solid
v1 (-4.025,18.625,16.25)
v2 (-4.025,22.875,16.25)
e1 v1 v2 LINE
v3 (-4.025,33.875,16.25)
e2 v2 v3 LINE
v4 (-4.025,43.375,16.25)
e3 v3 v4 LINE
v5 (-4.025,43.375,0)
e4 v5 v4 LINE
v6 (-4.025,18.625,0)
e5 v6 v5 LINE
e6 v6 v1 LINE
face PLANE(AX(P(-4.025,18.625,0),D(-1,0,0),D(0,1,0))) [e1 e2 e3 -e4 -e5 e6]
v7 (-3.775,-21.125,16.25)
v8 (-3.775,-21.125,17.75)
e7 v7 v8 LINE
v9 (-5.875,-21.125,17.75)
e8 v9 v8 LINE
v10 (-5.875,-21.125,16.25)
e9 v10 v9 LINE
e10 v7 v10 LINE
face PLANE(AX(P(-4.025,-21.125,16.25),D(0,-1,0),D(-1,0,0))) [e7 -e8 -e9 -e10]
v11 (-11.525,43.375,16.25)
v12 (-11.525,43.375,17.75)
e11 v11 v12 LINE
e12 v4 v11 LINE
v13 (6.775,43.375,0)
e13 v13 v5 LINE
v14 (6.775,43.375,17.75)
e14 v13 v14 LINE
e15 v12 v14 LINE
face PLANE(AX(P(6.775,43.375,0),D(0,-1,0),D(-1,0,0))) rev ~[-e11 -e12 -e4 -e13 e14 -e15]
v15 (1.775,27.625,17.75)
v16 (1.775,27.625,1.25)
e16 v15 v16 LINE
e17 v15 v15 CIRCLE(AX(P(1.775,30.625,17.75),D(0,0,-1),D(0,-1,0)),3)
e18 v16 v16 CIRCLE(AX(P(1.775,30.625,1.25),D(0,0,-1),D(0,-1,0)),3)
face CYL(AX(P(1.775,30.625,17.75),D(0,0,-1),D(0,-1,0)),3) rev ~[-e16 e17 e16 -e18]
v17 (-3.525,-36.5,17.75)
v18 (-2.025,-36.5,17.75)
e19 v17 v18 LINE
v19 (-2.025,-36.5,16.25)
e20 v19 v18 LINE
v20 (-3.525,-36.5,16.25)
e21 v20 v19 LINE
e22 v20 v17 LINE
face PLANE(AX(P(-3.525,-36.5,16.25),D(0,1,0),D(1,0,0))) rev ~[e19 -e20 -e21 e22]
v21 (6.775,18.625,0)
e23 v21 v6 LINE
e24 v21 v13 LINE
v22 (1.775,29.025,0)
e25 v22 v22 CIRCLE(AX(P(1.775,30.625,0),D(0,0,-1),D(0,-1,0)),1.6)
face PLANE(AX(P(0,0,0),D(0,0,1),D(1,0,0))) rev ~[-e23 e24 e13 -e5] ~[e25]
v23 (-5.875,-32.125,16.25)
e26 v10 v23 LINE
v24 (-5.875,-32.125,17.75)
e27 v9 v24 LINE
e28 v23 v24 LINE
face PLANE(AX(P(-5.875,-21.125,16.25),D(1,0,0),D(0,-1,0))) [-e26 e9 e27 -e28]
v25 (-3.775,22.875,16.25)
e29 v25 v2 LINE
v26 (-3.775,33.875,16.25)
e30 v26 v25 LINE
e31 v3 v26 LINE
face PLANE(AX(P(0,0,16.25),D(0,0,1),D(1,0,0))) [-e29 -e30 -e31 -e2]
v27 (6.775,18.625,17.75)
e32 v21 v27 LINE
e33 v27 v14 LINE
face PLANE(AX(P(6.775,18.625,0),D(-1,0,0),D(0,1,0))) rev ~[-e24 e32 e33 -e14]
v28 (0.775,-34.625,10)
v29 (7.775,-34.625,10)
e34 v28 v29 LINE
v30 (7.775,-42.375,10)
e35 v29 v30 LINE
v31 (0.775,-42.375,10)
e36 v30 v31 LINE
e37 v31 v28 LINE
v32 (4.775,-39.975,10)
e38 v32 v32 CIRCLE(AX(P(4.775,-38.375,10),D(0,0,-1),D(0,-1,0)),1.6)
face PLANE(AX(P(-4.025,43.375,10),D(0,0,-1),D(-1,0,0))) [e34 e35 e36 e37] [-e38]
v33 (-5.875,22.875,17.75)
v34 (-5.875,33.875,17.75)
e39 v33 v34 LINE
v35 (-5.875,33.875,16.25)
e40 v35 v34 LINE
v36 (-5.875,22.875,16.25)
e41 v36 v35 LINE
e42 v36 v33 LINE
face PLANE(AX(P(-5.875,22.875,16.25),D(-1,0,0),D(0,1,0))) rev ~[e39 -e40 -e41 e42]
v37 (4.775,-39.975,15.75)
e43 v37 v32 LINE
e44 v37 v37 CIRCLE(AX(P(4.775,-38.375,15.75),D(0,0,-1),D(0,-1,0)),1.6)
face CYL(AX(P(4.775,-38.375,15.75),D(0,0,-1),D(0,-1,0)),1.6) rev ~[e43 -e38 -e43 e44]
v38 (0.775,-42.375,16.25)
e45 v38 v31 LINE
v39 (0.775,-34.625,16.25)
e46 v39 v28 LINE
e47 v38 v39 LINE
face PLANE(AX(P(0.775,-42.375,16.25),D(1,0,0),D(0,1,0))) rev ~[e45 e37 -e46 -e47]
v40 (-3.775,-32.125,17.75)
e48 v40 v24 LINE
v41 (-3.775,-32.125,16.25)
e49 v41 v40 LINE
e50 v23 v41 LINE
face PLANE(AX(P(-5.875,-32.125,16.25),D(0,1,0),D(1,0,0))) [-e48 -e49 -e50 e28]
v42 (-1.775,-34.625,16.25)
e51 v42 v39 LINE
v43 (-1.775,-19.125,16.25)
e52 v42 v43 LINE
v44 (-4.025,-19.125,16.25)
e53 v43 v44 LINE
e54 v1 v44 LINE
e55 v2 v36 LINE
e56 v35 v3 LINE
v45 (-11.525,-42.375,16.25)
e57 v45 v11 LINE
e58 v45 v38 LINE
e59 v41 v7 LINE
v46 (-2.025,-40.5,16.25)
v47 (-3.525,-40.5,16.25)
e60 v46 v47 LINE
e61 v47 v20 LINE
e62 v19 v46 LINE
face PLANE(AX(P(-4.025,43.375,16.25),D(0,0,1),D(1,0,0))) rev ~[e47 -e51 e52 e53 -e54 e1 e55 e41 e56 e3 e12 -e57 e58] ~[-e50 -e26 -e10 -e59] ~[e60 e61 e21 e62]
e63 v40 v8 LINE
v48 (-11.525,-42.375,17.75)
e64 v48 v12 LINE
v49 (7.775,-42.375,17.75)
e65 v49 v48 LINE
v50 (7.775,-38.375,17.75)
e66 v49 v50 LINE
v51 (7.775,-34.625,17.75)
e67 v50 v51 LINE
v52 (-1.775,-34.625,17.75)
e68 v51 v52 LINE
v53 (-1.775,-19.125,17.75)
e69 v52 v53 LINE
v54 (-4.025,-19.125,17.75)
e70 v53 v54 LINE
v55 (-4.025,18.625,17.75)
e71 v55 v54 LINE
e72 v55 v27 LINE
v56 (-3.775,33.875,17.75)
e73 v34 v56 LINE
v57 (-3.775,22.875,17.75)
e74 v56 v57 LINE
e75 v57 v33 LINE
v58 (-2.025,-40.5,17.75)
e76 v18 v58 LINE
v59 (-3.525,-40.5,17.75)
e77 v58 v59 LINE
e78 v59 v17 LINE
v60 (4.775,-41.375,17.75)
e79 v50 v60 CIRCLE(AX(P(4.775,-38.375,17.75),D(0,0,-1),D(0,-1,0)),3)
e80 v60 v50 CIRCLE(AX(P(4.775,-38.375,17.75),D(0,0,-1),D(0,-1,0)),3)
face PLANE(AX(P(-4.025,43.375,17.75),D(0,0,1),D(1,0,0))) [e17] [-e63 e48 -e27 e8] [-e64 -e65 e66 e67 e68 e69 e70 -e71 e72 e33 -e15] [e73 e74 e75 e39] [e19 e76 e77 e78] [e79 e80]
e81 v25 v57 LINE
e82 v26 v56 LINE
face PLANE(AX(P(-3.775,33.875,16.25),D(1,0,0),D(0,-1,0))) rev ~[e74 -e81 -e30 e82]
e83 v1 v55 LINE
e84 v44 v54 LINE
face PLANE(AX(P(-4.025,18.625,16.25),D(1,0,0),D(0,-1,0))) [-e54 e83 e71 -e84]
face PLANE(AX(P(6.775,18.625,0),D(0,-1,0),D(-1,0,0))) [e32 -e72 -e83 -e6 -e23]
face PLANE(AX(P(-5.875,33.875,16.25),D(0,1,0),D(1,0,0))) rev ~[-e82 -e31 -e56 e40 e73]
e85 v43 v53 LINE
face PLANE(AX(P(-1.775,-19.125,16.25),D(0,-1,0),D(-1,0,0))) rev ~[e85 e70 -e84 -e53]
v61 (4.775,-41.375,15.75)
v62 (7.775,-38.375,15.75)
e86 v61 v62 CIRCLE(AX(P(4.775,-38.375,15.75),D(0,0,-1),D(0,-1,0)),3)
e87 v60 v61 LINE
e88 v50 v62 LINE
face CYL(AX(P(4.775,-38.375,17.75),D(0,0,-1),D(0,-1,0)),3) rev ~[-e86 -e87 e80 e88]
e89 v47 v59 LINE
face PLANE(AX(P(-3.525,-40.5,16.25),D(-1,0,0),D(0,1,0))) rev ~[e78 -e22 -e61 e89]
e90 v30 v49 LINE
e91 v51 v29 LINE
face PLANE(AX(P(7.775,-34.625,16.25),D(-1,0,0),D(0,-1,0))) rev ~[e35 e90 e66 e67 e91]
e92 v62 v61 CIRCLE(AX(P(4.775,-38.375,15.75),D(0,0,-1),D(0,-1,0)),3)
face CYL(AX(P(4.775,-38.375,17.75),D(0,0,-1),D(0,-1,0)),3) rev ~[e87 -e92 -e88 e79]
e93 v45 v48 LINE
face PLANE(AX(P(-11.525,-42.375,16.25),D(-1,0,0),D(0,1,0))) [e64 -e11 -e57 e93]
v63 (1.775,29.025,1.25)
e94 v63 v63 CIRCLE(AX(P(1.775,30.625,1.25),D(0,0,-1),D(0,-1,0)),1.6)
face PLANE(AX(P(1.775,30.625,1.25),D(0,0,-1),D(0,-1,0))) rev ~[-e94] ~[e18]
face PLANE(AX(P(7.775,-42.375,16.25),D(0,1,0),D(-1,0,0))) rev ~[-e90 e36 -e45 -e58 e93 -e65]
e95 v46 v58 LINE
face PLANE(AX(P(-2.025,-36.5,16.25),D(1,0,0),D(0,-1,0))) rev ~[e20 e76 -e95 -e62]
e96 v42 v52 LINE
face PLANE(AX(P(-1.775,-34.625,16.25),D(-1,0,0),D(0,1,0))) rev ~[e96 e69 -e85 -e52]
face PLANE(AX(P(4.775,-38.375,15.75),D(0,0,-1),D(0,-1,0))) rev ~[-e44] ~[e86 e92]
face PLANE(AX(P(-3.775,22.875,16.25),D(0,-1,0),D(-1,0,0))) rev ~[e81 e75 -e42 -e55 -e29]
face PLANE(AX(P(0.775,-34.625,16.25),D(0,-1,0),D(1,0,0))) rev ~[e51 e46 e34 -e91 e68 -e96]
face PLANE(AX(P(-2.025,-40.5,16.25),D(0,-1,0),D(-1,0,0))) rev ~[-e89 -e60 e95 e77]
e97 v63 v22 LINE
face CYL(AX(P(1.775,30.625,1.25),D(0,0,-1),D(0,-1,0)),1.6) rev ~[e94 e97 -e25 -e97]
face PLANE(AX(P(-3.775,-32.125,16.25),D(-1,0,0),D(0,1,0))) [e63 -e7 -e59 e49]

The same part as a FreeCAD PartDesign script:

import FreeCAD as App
import Part
import Sketcher
from FreeCAD import Vector
Q = App.Units.Quantity


def add_polygon(sketch, points):
    """Adds a closed chain of lines whose ends are joined by coincident constraints."""
    first, n = sketch.GeometryCount, len(points)
    for a, b in zip(points, points[1:] + points[:1]):
        sketch.addGeometry(Part.LineSegment(App.Vector(*a, 0), App.Vector(*b, 0)), False)
    for i in range(n):
        sketch.addConstraint(Sketcher.Constraint("Coincident", first + i, 2, first + (i + 1) % n, 1))

doc = App.newDocument("Part")
body = doc.addObject("PartDesign::Body", "Body")

sketch1 = body.newObject("Sketcher::SketchObject", "Sketch")
sketch1.AttachmentSupport = (doc.getObject("XY_Plane"), [""])
sketch1.MapMode = "FlatFace"
add_polygon(sketch1, [(-4, 18.6), (6.8, 18.6), (6.8, 43.4), (-4, 43.4)])
sketch1.addGeometry(Part.Circle(Vector(1.8, 30.6, 0), Vector(0, 0, 1), 1.3), False)
sketch1.addConstraint([
    Sketcher.Constraint("Horizontal", 0),
    Sketcher.Constraint("Vertical", 1),
    Sketcher.Constraint("Horizontal", 2),
    Sketcher.Constraint("Vertical", 3),
    Sketcher.Constraint("Diameter", 4, Q("2.6 mm")),
    Sketcher.Constraint("DistanceX", 0, 1, 0, 2, Q("10.8 mm")),
    Sketcher.Constraint("DistanceX", 4, 3, 0, 2, Q("5 mm")),
    Sketcher.Constraint("DistanceY", 0, 2, 4, 3, Q("12 mm")),
    Sketcher.Constraint("DistanceY", 1, 1, 1, 2, Q("24.75 mm")),
    Sketcher.Constraint("DistanceX", -1, 1, 4, 3, Q("1.775 mm")),
    Sketcher.Constraint("DistanceY", -1, 1, 4, 3, Q("30.625 mm")),
])
pad1 = body.newObject("PartDesign::Pad", "Pad")
pad1.Profile = sketch1
pad1.Length = 16.25

sketch2 = body.newObject("Sketcher::SketchObject", "Sketch001")
sketch2.AttachmentSupport = (doc.getObject("XY_Plane"), [""])
sketch2.MapMode = "FlatFace"
sketch2.AttachmentOffset = App.Placement(Vector(0, 0, 16.25), App.Rotation())
add_polygon(sketch2, [(-11.5, 43.4), (-11.5, -42.4), (7.8, -42.4), (7.8, -34.6), (-1.8, -34.6), (-1.8, -19.1), (-4, -19.1), (-4, 18.6), (6.8, 18.6), (6.8, 43.4)])
add_polygon(sketch2, [(-5.9, -21.1), (-3.8, -21.1), (-3.8, -32.1), (-5.9, -32.1)])
add_polygon(sketch2, [(-2, -40.5), (-3.5, -40.5), (-3.5, -36.5), (-2, -36.5)])
add_polygon(sketch2, [(-5.9, 22.9), (-5.9, 33.9), (-3.8, 33.9), (-3.8, 22.9)])
sketch2.addConstraint([
    Sketcher.Constraint("Vertical", 0),
    Sketcher.Constraint("Horizontal", 1),
    Sketcher.Constraint("Vertical", 2),
    Sketcher.Constraint("Horizontal", 3),
    Sketcher.Constraint("Vertical", 4),
    Sketcher.Constraint("Horizontal", 5),
    Sketcher.Constraint("Vertical", 6),
    Sketcher.Constraint("Horizontal", 7),
    Sketcher.Constraint("Vertical", 8),
    Sketcher.Constraint("Horizontal", 9),
    Sketcher.Constraint("Horizontal", 10),
    Sketcher.Constraint("Vertical", 11),
    Sketcher.Constraint("Horizontal", 12),
    Sketcher.Constraint("Vertical", 13),
    Sketcher.Constraint("Horizontal", 14),
    Sketcher.Constraint("Vertical", 15),
    Sketcher.Constraint("Horizontal", 16),
    Sketcher.Constraint("Vertical", 17),
    Sketcher.Constraint("Vertical", 18),
    Sketcher.Constraint("Horizontal", 19),
    Sketcher.Constraint("Vertical", 20),
    Sketcher.Constraint("Horizontal", 21),
    Sketcher.Constraint("Vertical", 13, 2, 18, 2),
    Sketcher.Constraint("Vertical", 11, 2, 19, 2),
    Sketcher.Constraint("Equal", 13, 18),
    Sketcher.Constraint("DistanceY", 15, 1, 15, 2, Q("4 mm")),
    Sketcher.Constraint("DistanceX", 14, 2, 14, 1, Q("1.5 mm")),
    Sketcher.Constraint("DistanceY", 10, 2, 5, 2, Q("2 mm")),
    Sketcher.Constraint("DistanceX", 10, 2, 4, 2, Q("2 mm")),
    Sketcher.Constraint("DistanceX", 0, 2, 14, 2, Q("8 mm")),
    Sketcher.Constraint("DistanceY", 11, 2, 11, 1, Q("11 mm")),
    Sketcher.Constraint("DistanceX", 5, 2, 10, 2, Q("0.25 mm")),
    Sketcher.Constraint("DistanceX", 11, 2, 14, 2, Q("0.25 mm")),
    Sketcher.Constraint("DistanceX", 1, 1, 1, 2, Q("19.3 mm")),
    Sketcher.Constraint("DistanceX", 7, 1, 7, 2, Q("10.8 mm")),
    Sketcher.Constraint("DistanceX", 10, 1, 10, 2, Q("2.1 mm")),
    Sketcher.Constraint("DistanceY", 4, 1, 4, 2, Q("15.5 mm")),
    Sketcher.Constraint("DistanceY", 0, 2, 6, 2, Q("61 mm")),
    Sketcher.Constraint("DistanceY", 2, 2, 8, 2, Q("78 mm")),
    Sketcher.Constraint("DistanceY", 0, 2, 14, 2, Q("1.875 mm")),
    Sketcher.Constraint("DistanceY", 15, 2, 3, 2, Q("1.875 mm")),
    Sketcher.Constraint("DistanceY", 5, 2, 18, 2, Q("53 mm")),
    Sketcher.Constraint("DistanceY", 14, 2, -1, 1, Q("40.5 mm")),
    Sketcher.Constraint("DistanceX", 0, 2, -1, 1, Q("11.525 mm")),
])
pad2 = body.newObject("PartDesign::Pad", "Pad001")
pad2.Profile = sketch2
pad2.Length = 1.5

sketch3 = body.newObject("Sketcher::SketchObject", "Sketch002")
sketch3.AttachmentSupport = (doc.getObject("XY_Plane"), [""])
sketch3.MapMode = "FlatFace"
sketch3.AttachmentOffset = App.Placement(Vector(0, 0, 17.75), App.Rotation())
sketch3.addGeometry(Part.Circle(Vector(1.8, 30.6, 0), Vector(0, 0, 1), 1.6), False)
sketch3.addConstraint([
    Sketcher.Constraint("Diameter", 0, Q("3.2 mm")),
    Sketcher.Constraint("DistanceX", -1, 1, 0, 3, Q("1.775 mm")),
    Sketcher.Constraint("DistanceY", -1, 1, 0, 3, Q("30.625 mm")),
])
doc.recompute()
hole = body.newObject("PartDesign::Hole", "Hole")
hole.Profile = sketch3
hole.ThreadType = "None"
hole.Diameter = 3.2
hole.DepthType = "ThroughAll"
hole.HoleCutType = "Counterbore"
hole.HoleCutDiameter = 6
hole.HoleCutDepth = 16.5

sketch4 = body.newObject("Sketcher::SketchObject", "Sketch003")
sketch4.AttachmentSupport = (doc.getObject("XY_Plane"), [""])
sketch4.MapMode = "FlatFace"
sketch4.AttachmentOffset = App.Placement(Vector(0, 0, 16.25), App.Rotation())
add_polygon(sketch4, [(1, -42), (1, -35), (8, -35), (8, -42)])
sketch4.addConstraint([
    Sketcher.Constraint("Vertical", 0),
    Sketcher.Constraint("Horizontal", 1),
    Sketcher.Constraint("Vertical", 2),
    Sketcher.Constraint("Horizontal", 3),
    Sketcher.Constraint("DistanceX", 1, 1, 1, 2, Q("7 mm")),
    Sketcher.Constraint("DistanceY", 0, 1, 0, 2, Q("7.75 mm")),
    Sketcher.Constraint("DistanceX", -1, 1, 0, 2, Q("0.775 mm")),
    Sketcher.Constraint("DistanceY", 0, 2, -1, 1, Q("34.625 mm")),
])
pad3 = body.newObject("PartDesign::Pad", "Pad002")
pad3.Profile = sketch4
pad3.Length = 6.25
pad3.Reversed = True

sketch5 = body.newObject("Sketcher::SketchObject", "Sketch004")
sketch5.AttachmentSupport = (doc.getObject("XY_Plane"), [""])
sketch5.MapMode = "FlatFace"
sketch5.AttachmentOffset = App.Placement(Vector(0, 0, 17.75), App.Rotation())
sketch5.addGeometry(Part.Circle(Vector(4.8, -38.4, 0), Vector(0, 0, 1), 1.6), False)
sketch5.addConstraint([
    Sketcher.Constraint("Diameter", 0, Q("3.2 mm")),
    Sketcher.Constraint("DistanceX", -1, 1, 0, 3, Q("4.775 mm")),
    Sketcher.Constraint("DistanceY", 0, 3, -1, 1, Q("38.375 mm")),
])
doc.recompute()
hole2 = body.newObject("PartDesign::Hole", "Hole001")
hole2.Profile = sketch5
hole2.ThreadType = "None"
hole2.Diameter = 3.2
hole2.DepthType = "ThroughAll"
hole2.HoleCutType = "Counterbore"
hole2.HoleCutDiameter = 6
hole2.HoleCutDepth = 2

doc.recompute()
